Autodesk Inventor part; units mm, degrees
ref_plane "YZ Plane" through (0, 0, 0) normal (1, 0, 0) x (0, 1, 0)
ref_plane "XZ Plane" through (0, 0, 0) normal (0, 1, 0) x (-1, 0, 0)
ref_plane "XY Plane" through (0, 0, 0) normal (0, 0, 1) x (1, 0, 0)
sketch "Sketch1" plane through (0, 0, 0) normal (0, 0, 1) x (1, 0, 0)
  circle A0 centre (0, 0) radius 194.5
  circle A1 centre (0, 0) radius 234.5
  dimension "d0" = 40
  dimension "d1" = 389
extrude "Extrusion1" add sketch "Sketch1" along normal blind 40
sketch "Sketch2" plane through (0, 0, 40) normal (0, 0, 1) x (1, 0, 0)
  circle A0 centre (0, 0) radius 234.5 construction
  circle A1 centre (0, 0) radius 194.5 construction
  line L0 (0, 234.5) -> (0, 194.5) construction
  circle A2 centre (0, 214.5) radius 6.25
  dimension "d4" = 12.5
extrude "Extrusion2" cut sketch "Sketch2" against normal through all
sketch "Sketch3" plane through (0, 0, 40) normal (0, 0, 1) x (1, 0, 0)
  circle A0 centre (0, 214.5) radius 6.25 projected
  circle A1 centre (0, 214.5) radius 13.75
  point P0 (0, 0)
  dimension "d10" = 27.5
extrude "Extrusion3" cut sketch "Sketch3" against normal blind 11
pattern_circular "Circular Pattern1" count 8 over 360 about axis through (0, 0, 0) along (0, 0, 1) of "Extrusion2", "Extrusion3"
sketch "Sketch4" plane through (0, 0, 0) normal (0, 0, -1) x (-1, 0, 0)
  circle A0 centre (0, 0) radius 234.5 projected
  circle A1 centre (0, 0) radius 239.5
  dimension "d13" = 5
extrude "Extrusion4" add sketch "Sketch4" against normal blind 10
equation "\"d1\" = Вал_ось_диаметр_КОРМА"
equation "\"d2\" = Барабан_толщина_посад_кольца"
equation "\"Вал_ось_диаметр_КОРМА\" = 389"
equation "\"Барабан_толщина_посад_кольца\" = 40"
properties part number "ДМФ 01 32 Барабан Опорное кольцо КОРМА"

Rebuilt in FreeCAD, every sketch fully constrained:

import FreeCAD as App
import Part
import Sketcher

V = App.Vector
Q = App.Units.Quantity

doc = App.newDocument("Part")
body = doc.addObject("PartDesign::Body", "Body")

sketch1 = body.newObject("Sketcher::SketchObject", "Sketch")
sketch1.AttachmentSupport = (doc.getObject("XY_Plane"), [""])
sketch1.MapMode = "FlatFace"
sketch1.addGeometry([
    Part.Circle(V(0, 0, 0), V(0, 0, 1), 234),
    Part.Circle(V(0, 0, 0), V(0, 0, 1), 194),
], False)
sketch1.addConstraint([
    Sketcher.Constraint("Coincident", 0, 3, -1, 1),
    Sketcher.Constraint("Coincident", 1, 3, -1, 1),
    Sketcher.Constraint("Diameter", 1, Q("389 mm")),
    Sketcher.Constraint("Diameter", 0, Q("469 mm")),
])
pad1 = body.newObject("PartDesign::Pad", "Pad")
pad1.Profile = sketch1
pad1.Length = 40

sketch2 = body.newObject("Sketcher::SketchObject", "Sketch001")
sketch2.AttachmentSupport = (doc.getObject("XY_Plane"), [""])
sketch2.MapMode = "FlatFace"
sketch2.AttachmentOffset = App.Placement(V(0, 0, 40), App.Rotation())
sketch2.addGeometry(Part.Circle(V(0, 214, 0), V(0, 0, 1), 6), False)
sketch2.addConstraint([
    Sketcher.Constraint("PointOnObject", 0, 3, -2),
    Sketcher.Constraint("Diameter", 0, Q("12.5 mm")),
    Sketcher.Constraint("DistanceY", -1, 1, 0, 3, Q("214.5 mm")),
])
pocket1 = body.newObject("PartDesign::Pocket", "Pocket")
pocket1.Profile = sketch2
pocket1.Type = "ThroughAll"

sketch3 = body.newObject("Sketcher::SketchObject", "Sketch002")
sketch3.AttachmentSupport = (doc.getObject("XY_Plane"), [""])
sketch3.MapMode = "FlatFace"
sketch3.AttachmentOffset = App.Placement(V(0, 0, 40), App.Rotation())
sketch3.addGeometry([
    Part.Circle(V(0, 214, 0), V(0, 0, 1), 14),
    Part.Circle(V(0, 214, 0), V(0, 0, 1), 6),
], False)
sketch3.addConstraint([
    Sketcher.Constraint("Coincident", 1, 3, 0, 3),
    Sketcher.Constraint("PointOnObject", 0, 3, -2),
    Sketcher.Constraint("Diameter", 0, Q("27.5 mm")),
    Sketcher.Constraint("Diameter", 1, Q("12.5 mm")),
    Sketcher.Constraint("DistanceY", -1, 1, 0, 3, Q("214.5 mm")),
])
pocket2 = body.newObject("PartDesign::Pocket", "Pocket001")
pocket2.Profile = sketch3
pocket2.Length = 11
doc.recompute()

polarpattern = body.newObject("PartDesign::PolarPattern", "PolarPattern")
polarpattern.Originals = [pocket1, pocket2]
polarpattern.Axis = (doc.getObject("Z_Axis"), [""])
polarpattern.Angle = 360
polarpattern.Occurrences = 8
body.Tip = polarpattern

sketch4 = body.newObject("Sketcher::SketchObject", "Sketch003")
sketch4.AttachmentSupport = (doc.getObject("XY_Plane"), [""])
sketch4.MapMode = "FlatFace"
sketch4.addGeometry([
    Part.Circle(V(0, 0, 0), V(0, 0, 1), 240),
    Part.Circle(V(0, 0, 0), V(0, 0, 1), 234),
], False)
sketch4.addConstraint([
    Sketcher.Constraint("Coincident", 0, 3, -1, 1),
    Sketcher.Constraint("Coincident", 1, 3, -1, 1),
    Sketcher.Constraint("Diameter", 0, Q("479 mm")),
    Sketcher.Constraint("Diameter", 1, Q("469 mm")),
])
pad2 = body.newObject("PartDesign::Pad", "Pad001")
pad2.Profile = sketch4
pad2.Length = 10

doc.recompute()
